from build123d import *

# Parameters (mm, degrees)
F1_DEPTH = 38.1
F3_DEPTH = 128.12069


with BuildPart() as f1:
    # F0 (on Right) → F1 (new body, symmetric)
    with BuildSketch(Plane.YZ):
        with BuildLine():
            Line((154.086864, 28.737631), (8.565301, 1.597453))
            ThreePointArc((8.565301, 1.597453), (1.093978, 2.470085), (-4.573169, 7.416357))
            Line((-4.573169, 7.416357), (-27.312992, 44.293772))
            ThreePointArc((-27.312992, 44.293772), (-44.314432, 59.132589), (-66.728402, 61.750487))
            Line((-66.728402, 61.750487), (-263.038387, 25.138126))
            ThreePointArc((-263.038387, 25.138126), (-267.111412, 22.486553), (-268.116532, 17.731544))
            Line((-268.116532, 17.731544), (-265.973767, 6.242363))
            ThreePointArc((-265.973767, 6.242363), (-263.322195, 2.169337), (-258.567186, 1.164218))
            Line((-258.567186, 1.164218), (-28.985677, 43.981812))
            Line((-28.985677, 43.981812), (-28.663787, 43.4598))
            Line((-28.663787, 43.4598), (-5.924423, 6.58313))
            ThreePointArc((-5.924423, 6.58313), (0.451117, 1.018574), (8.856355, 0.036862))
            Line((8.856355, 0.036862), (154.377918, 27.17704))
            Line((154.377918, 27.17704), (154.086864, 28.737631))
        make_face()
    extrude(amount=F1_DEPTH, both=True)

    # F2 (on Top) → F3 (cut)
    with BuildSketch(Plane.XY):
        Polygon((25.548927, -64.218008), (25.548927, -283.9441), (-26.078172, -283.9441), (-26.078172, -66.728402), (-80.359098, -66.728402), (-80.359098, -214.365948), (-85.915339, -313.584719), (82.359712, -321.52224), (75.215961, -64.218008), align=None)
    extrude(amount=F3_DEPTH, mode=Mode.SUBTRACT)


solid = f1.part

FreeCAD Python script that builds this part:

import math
import FreeCAD as App
import Part
import Sketcher
Q = App.Units.Quantity

doc = App.newDocument("Part")
body = doc.addObject("PartDesign::Body", "Body")

sketch1 = body.newObject("Sketcher::SketchObject", "Sketch")
sketch1.AttachmentSupport = (doc.getObject("YZ_Plane"), [""])
sketch1.MapMode = "FlatFace"
sketch1.addGeometry(Part.LineSegment(App.Vector(154.1, 28.7, 0), App.Vector(8.6, 1.6, 0)), False)
sketch1.addGeometry(Part.ArcOfCircle(Part.Circle(App.Vector(6.2, 14.1, 0), App.Vector(0, 0, 1), 12.7), math.radians(-148), math.radians(-79)), False)
sketch1.addGeometry(Part.LineSegment(App.Vector(-4.6, 7.4, 0), App.Vector(-27.3, 44.3, 0)), False)
sketch1.addGeometry(Part.ArcOfCircle(Part.Circle(App.Vector(-59.7, 24.3, 0), App.Vector(0, 0, 1), 38.1), math.radians(32), math.radians(101)), False)
sketch1.addGeometry(Part.LineSegment(App.Vector(-66.7, 61.8, 0), App.Vector(-263, 25.1, 0)), False)
sketch1.addGeometry(Part.ArcOfCircle(Part.Circle(App.Vector(-261.9, 18.9, 0), App.Vector(0, 0, 1), 6.4), math.radians(101), math.radians(191)), False)
sketch1.addGeometry(Part.LineSegment(App.Vector(-268.1, 17.7, 0), App.Vector(-266, 6.2, 0)), False)
sketch1.addGeometry(Part.ArcOfCircle(Part.Circle(App.Vector(-259.7, 7.4, 0), App.Vector(0, 0, 1), 6.3), math.radians(-169), math.radians(-79)), False)
sketch1.addGeometry(Part.LineSegment(App.Vector(-258.6, 1.2, 0), App.Vector(-29, 44, 0)), False)
sketch1.addGeometry(Part.LineSegment(App.Vector(-29, 44, 0), App.Vector(-28.7, 43.5, 0)), False)
sketch1.addGeometry(Part.LineSegment(App.Vector(-28.7, 43.5, 0), App.Vector(-5.9, 6.6, 0)), False)
sketch1.addGeometry(Part.ArcOfCircle(Part.Circle(App.Vector(6.2, 14.1, 0), App.Vector(0, 0, 1), 14.3), math.radians(-148), math.radians(-79)), False)
sketch1.addGeometry(Part.LineSegment(App.Vector(8.9, 0, 0), App.Vector(154.4, 27.2, 0)), False)
sketch1.addGeometry(Part.LineSegment(App.Vector(154.4, 27.2, 0), App.Vector(154.1, 28.7, 0)), False)
sketch1.addConstraint(Sketcher.Constraint("Tangent", 0, 2, 1, 2))
sketch1.addConstraint(Sketcher.Constraint("Tangent", 1, 1, 2, 1))
sketch1.addConstraint(Sketcher.Constraint("Tangent", 2, 2, 3, 1))
sketch1.addConstraint(Sketcher.Constraint("Tangent", 3, 2, 4, 1))
sketch1.addConstraint(Sketcher.Constraint("Tangent", 4, 2, 5, 1))
sketch1.addConstraint(Sketcher.Constraint("Tangent", 5, 2, 6, 1))
sketch1.addConstraint(Sketcher.Constraint("Tangent", 6, 2, 7, 1))
sketch1.addConstraint(Sketcher.Constraint("Tangent", 7, 2, 8, 1))
sketch1.addConstraint(Sketcher.Constraint("Coincident", 8, 2, 9, 1))
sketch1.addConstraint(Sketcher.Constraint("Coincident", 9, 2, 10, 1))
sketch1.addConstraint(Sketcher.Constraint("Tangent", 10, 2, 11, 1))
sketch1.addConstraint(Sketcher.Constraint("Tangent", 11, 2, 12, 1))
sketch1.addConstraint(Sketcher.Constraint("Coincident", 12, 2, 13, 1))
sketch1.addConstraint(Sketcher.Constraint("Coincident", 13, 2, 0, 1))
sketch1.addConstraint(Sketcher.Constraint("Coincident", 11, 3, 1, 3))
sketch1.addConstraint(Sketcher.Constraint("Parallel", 0, 4))
sketch1.addConstraint(Sketcher.Constraint("Perpendicular", 4, 6))
sketch1.addConstraint(Sketcher.Constraint("Perpendicular", 6, 8))
sketch1.addConstraint(Sketcher.Constraint("Parallel", 2, 9))
sketch1.addConstraint(Sketcher.Constraint("Parallel", 9, 10))
sketch1.addConstraint(Sketcher.Constraint("Parallel", 8, 12))
sketch1.addConstraint(Sketcher.Constraint("Perpendicular", 12, 13))
sketch1.addConstraint(Sketcher.Constraint("Radius", 1, Q("0.5 in")))
sketch1.addConstraint(Sketcher.Constraint("Radius", 3, Q("1.5 in")))
sketch1.addConstraint(Sketcher.Constraint("Radius", 5, Q("0.2500001 in")))
sketch1.addConstraint(Sketcher.Constraint("Radius", 7, Q("0.25 in")))
sketch1.addConstraint(Sketcher.Constraint("Radius", 11, Q("0.5625 in")))
sketch1.addConstraint(Sketcher.Constraint("DistanceX", 7, 3, 1, 1, Q("10.0455998 in")))
sketch1.addConstraint(Sketcher.Constraint("DistanceX", -1, 1, 0, 2, Q("8.565301 mm")))
sketch1.addConstraint(Sketcher.Constraint("DistanceX", 3, 2, -1, 1, Q("66.728402 mm")))
sketch1.addConstraint(Sketcher.Constraint("DistanceY", -1, 1, 9, 2, Q("43.4598 mm")))
sketch1.addConstraint(Sketcher.Constraint("DistanceY", 7, 3, 1, 3, Q("6.675598 mm")))
sketch1.addConstraint(Sketcher.Constraint("DistanceX", 3, 3, 2, 2, Q("32.430101 mm")))
sketch1.addConstraint(Sketcher.Constraint("DistanceX", 6, 2, 5, 3, Q("4.099601 mm")))
sketch1.addConstraint(Sketcher.Constraint("DistanceX", 11, 3, 13, 2, Q("147.849999 mm")))
sketch1.addConstraint(Sketcher.Constraint("DistanceY", -1, 1, 1, 3, Q("14.082178 mm")))
pad1 = body.newObject("PartDesign::Pad", "Pad")
pad1.Profile = sketch1
pad1.Length = Q("3 in")
pad1.Midplane = True

sketch2 = body.newObject("Sketcher::SketchObject", "Sketch001")
sketch2.AttachmentSupport = (doc.getObject("XY_Plane"), [""])
sketch2.MapMode = "FlatFace"
sketch2.addGeometry(Part.LineSegment(App.Vector(26, -64, 0), App.Vector(26, -284, 0)), False)
sketch2.addGeometry(Part.LineSegment(App.Vector(26, -284, 0), App.Vector(-26, -284, 0)), False)
sketch2.addGeometry(Part.LineSegment(App.Vector(-26, -284, 0), App.Vector(-26, -67, 0)), False)
sketch2.addGeometry(Part.LineSegment(App.Vector(-26, -67, 0), App.Vector(-80, -67, 0)), False)
sketch2.addGeometry(Part.LineSegment(App.Vector(-80, -67, 0), App.Vector(-80, -214, 0)), False)
sketch2.addGeometry(Part.LineSegment(App.Vector(-80, -214, 0), App.Vector(-86, -314, 0)), False)
sketch2.addGeometry(Part.LineSegment(App.Vector(-86, -314, 0), App.Vector(82, -322, 0)), False)
sketch2.addGeometry(Part.LineSegment(App.Vector(82, -322, 0), App.Vector(75, -64, 0)), False)
sketch2.addGeometry(Part.LineSegment(App.Vector(75, -64, 0), App.Vector(26, -64, 0)), False)
sketch2.addConstraint(Sketcher.Constraint("Coincident", 0, 2, 1, 1))
sketch2.addConstraint(Sketcher.Constraint("Coincident", 1, 2, 2, 1))
sketch2.addConstraint(Sketcher.Constraint("Coincident", 2, 2, 3, 1))
sketch2.addConstraint(Sketcher.Constraint("Coincident", 3, 2, 4, 1))
sketch2.addConstraint(Sketcher.Constraint("Coincident", 4, 2, 5, 1))
sketch2.addConstraint(Sketcher.Constraint("Coincident", 5, 2, 6, 1))
sketch2.addConstraint(Sketcher.Constraint("Coincident", 6, 2, 7, 1))
sketch2.addConstraint(Sketcher.Constraint("Coincident", 7, 2, 8, 1))
sketch2.addConstraint(Sketcher.Constraint("Coincident", 8, 2, 0, 1))
sketch2.addConstraint(Sketcher.Constraint("Vertical", 0))
sketch2.addConstraint(Sketcher.Constraint("Horizontal", 1))
sketch2.addConstraint(Sketcher.Constraint("Vertical", 2))
sketch2.addConstraint(Sketcher.Constraint("Horizontal", 3))
sketch2.addConstraint(Sketcher.Constraint("Vertical", 4))
sketch2.addConstraint(Sketcher.Constraint("Horizontal", 8))
sketch2.addConstraint(Sketcher.Constraint("DistanceX", 1, 2, 1, 1, Q("51.627099 mm")))
sketch2.addConstraint(Sketcher.Constraint("DistanceY", 0, 2, 0, 1, Q("219.726092 mm")))
sketch2.addConstraint(Sketcher.Constraint("DistanceY", 0, 2, -1, 1, Q("283.9441 mm")))
sketch2.addConstraint(Sketcher.Constraint("DistanceX", 3, 2, -1, 1, Q("80.359098 mm")))
sketch2.addConstraint(Sketcher.Constraint("Distance", 7, Q("257.403382 mm")))
sketch2.addConstraint(Sketcher.Constraint("DistanceX", 3, 2, 3, 1, Q("54.280926 mm")))
sketch2.addConstraint(Sketcher.Constraint("DistanceX", 8, 2, 8, 1, Q("49.667034 mm")))
sketch2.addConstraint(Sketcher.Constraint("DistanceY", 2, 1, 2, 2, Q("217.215698 mm")))
sketch2.addConstraint(Sketcher.Constraint("DistanceY", 4, 2, 4, 1, Q("147.637546 mm")))
sketch2.addConstraint(Sketcher.Constraint("DistanceX", 5, 2, -1, 1, Q("85.915339 mm")))
sketch2.addConstraint(Sketcher.Constraint("DistanceY", 5, 2, -1, 1, Q("313.584719 mm")))
sketch2.addConstraint(Sketcher.Constraint("DistanceX", -1, 1, 6, 2, Q("82.359712 mm")))
pocket1 = body.newObject("PartDesign::Pocket", "Pocket")
pocket1.Profile = sketch2
pocket1.Length = 128.12069
pocket1.Reversed = True

doc.recompute()
